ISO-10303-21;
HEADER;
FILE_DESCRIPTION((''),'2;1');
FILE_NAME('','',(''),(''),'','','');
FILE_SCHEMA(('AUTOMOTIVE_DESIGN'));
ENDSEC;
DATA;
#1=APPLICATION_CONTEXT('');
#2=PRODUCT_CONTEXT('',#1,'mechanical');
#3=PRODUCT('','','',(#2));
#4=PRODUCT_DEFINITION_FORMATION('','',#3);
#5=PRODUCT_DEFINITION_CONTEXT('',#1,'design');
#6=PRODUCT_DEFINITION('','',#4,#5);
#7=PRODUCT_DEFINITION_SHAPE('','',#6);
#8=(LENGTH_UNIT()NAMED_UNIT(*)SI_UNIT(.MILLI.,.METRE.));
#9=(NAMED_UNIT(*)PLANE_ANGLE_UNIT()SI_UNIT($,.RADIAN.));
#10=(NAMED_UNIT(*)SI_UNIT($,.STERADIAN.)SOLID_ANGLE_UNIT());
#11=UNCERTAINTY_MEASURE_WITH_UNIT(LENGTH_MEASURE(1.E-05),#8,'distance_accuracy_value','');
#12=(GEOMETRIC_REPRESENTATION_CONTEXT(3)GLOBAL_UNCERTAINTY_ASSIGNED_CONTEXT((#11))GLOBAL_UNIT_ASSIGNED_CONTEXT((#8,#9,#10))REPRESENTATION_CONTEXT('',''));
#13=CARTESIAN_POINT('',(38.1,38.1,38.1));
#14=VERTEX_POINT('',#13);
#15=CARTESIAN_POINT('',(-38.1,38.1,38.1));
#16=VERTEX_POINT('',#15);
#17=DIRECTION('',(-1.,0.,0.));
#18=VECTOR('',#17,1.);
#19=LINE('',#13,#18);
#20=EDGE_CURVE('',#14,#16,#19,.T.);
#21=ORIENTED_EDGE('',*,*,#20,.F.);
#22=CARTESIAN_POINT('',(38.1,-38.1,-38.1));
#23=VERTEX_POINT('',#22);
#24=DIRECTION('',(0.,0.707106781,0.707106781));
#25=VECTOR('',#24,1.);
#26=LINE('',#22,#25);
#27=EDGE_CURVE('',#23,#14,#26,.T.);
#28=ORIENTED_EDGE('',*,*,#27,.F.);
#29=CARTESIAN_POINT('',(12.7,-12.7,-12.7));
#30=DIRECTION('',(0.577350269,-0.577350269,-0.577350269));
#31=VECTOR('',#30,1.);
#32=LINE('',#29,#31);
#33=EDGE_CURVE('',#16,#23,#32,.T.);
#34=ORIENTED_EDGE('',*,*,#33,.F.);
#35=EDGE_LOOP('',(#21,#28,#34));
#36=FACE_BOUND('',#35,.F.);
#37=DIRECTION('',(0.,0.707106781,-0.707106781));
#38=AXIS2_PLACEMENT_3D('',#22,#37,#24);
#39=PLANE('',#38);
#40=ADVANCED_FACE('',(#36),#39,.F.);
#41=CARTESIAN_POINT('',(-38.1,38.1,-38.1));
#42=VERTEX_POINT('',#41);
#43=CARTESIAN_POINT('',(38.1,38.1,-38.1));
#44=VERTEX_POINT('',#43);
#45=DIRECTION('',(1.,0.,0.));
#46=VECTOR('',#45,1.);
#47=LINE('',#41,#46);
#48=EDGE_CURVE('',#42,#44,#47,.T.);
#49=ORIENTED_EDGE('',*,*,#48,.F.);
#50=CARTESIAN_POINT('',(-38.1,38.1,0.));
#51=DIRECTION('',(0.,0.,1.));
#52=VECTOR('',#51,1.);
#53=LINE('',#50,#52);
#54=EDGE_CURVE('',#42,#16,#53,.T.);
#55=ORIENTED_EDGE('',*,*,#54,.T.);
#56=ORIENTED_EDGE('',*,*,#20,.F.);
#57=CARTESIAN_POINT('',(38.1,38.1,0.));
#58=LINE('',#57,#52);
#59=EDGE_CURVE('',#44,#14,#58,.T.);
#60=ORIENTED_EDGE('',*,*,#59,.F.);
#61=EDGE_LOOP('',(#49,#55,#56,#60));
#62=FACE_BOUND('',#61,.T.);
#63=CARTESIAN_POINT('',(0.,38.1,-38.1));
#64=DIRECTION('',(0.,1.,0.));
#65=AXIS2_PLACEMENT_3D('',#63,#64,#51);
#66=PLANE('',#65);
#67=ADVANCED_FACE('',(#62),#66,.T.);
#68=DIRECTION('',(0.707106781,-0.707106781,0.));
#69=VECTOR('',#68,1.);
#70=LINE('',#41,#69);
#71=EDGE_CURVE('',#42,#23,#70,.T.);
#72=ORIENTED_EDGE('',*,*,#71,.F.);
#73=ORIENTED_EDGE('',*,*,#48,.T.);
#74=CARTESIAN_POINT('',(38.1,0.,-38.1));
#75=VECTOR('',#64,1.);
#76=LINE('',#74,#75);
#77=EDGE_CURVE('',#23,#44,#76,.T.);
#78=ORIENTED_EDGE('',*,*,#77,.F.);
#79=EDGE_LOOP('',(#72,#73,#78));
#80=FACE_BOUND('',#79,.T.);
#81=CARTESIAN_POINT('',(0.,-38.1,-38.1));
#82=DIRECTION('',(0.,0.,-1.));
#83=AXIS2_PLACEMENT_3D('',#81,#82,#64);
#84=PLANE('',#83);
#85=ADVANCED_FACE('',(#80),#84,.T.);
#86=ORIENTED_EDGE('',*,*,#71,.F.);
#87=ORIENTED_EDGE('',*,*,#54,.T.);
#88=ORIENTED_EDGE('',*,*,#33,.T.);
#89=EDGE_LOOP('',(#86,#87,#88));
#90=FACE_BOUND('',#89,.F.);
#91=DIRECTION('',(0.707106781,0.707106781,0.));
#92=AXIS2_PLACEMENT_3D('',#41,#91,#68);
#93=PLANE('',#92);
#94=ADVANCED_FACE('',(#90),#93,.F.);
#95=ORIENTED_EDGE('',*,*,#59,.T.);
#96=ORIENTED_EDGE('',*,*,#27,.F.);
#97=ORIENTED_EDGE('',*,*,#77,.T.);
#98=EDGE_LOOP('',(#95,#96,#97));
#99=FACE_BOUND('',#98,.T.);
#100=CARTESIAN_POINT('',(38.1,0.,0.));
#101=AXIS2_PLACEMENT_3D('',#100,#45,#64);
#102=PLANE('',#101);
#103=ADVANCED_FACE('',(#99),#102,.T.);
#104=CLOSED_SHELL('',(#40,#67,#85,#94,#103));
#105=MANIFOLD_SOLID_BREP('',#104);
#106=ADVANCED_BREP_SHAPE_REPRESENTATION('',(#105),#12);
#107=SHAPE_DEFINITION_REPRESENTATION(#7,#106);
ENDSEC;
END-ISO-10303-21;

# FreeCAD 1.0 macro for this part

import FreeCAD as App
import Part
import Sketcher
Q = App.Units.Quantity


def add_polygon(sketch, points):
    """Adds a closed chain of lines whose ends are joined by coincident constraints."""
    first, n = sketch.GeometryCount, len(points)
    for a, b in zip(points, points[1:] + points[:1]):
        sketch.addGeometry(Part.LineSegment(App.Vector(*a, 0), App.Vector(*b, 0)), False)
    for i in range(n):
        sketch.addConstraint(Sketcher.Constraint("Coincident", first + i, 2, first + (i + 1) % n, 1))

doc = App.newDocument("Part")
body = doc.addObject("PartDesign::Body", "Body")

# Sketch on YZ plane
sketch1 = doc.addObject("Sketcher::SketchObject", "Sketch")
body.addObject(sketch1)
sketch1.AttachmentSupport = (doc.YZ_Plane, [""])
sketch1.MapMode = "FlatFace"
add_polygon(sketch1, [(-38, 38), (-38, -38), (38, -38), (38, 38)])  # lines 0-3
sketch1.addConstraint([
    Sketcher.Constraint("Vertical", 0),
    Sketcher.Constraint("Horizontal", 1),
    Sketcher.Constraint("Vertical", 2),
    Sketcher.Constraint("Horizontal", 3),
    Sketcher.Constraint("Symmetric", 0, 2, 2, 2, -1, 1),
    Sketcher.Constraint("Equal", 3, 0),
    Sketcher.Constraint("DistanceX", 1, 1, 1, 2, Q("3 in")),
])
pad1 = doc.addObject("PartDesign::Pad", "Pad")
body.addObject(pad1)
pad1.Profile = sketch1
pad1.Length = Q("3 in")
pad1.Midplane = True

# Sketch on YZ plane
sketch2 = doc.addObject("Sketcher::SketchObject", "Sketch001")
body.addObject(sketch2)
sketch2.AttachmentSupport = (doc.YZ_Plane, [""])
sketch2.MapMode = "FlatFace"
sketch2.AttachmentOffset = App.Placement(App.Vector(0, 0, 1.5 * 25.4), App.Rotation())
add_polygon(sketch2, [(38, 38), (-38, 38), (-38, -38)])  # lines 0-2
sketch2.addConstraint([
    Sketcher.Constraint("Horizontal", 0),
    Sketcher.Constraint("Vertical", 1),
    Sketcher.Constraint("Symmetric", 1, 2, 2, 2, -1, 1),
    Sketcher.Constraint("Equal", 0, 1),
    Sketcher.Constraint("DistanceX", 0, 2, 0, 1, Q("3 in")),
])
pocket1 = doc.addObject("PartDesign::Pocket", "Pocket")
body.addObject(pocket1)
pocket1.Profile = sketch2
pocket1.Length = Q("3 in")

# Sketch on XY plane
sketch3 = doc.addObject("Sketcher::SketchObject", "Sketch002")
body.addObject(sketch3)
sketch3.AttachmentSupport = (doc.XY_Plane, [""])
sketch3.MapMode = "FlatFace"
sketch3.AttachmentOffset = App.Placement(App.Vector(0, 0, -1.5 * 25.4), App.Rotation())
add_polygon(sketch3, [(-38, 38), (38, -38), (-38, -38)])  # lines 0-2
sketch3.addConstraint([
    Sketcher.Constraint("Horizontal", 1),
    Sketcher.Constraint("Vertical", 2),
    Sketcher.Constraint("Symmetric", 0, 2, 2, 2, -1, 1),
    Sketcher.Constraint("Equal", 1, 2),
    Sketcher.Constraint("DistanceX", 1, 2, 1, 1, Q("3 in")),
])
pocket2 = doc.addObject("PartDesign::Pocket", "Pocket001")
body.addObject(pocket2)
pocket2.Profile = sketch3
pocket2.Length = Q("3 in")
pocket2.Reversed = True

doc.recompute()
